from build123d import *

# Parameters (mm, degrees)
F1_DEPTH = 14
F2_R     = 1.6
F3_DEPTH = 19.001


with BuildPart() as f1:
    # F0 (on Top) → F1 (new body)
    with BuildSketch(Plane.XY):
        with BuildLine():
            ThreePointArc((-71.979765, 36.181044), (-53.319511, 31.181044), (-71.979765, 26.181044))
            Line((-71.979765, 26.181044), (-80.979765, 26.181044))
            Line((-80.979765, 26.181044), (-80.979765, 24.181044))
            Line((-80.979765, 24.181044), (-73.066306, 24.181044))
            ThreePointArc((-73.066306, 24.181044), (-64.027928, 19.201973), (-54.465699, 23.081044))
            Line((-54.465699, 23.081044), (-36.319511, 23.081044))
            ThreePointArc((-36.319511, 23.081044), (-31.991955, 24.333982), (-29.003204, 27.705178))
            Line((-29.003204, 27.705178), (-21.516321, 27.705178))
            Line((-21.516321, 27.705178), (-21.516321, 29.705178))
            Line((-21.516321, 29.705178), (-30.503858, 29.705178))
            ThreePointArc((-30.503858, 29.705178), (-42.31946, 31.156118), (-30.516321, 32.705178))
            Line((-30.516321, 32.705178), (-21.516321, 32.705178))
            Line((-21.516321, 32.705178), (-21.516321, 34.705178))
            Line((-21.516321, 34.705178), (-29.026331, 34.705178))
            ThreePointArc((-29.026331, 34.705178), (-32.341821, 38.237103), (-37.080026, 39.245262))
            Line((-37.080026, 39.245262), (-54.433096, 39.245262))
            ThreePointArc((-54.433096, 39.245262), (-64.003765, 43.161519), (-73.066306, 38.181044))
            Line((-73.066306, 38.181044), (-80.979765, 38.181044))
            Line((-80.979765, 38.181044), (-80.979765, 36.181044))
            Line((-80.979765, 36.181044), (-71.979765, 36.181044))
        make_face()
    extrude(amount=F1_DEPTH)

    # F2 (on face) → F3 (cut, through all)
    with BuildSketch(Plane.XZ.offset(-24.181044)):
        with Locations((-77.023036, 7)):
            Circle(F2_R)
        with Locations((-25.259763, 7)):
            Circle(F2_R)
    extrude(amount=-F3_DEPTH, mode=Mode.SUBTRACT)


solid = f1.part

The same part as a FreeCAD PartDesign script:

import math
import FreeCAD as App
import Part
import Sketcher
from FreeCAD import Vector
Q = App.Units.Quantity

doc = App.newDocument("Part")
body = doc.addObject("PartDesign::Body", "Body")

sketch1 = body.newObject("Sketcher::SketchObject", "Sketch")
sketch1.AttachmentSupport = (doc.getObject("XY_Plane"), [""])
sketch1.MapMode = "FlatFace"
sketch1.addGeometry([
    Part.ArcOfCircle(Part.Circle(Vector(-63.319511, 31.181044, 0), Vector(0, 0, 1), 10), math.radians(-150), math.radians(150)),
    Part.LineSegment(Vector(-71.979765, 26.181044, 0), Vector(-80.979765, 26.181044, 0)),
    Part.LineSegment(Vector(-80.979765, 26.181044, 0), Vector(-80.979765, 24.181044, 0)),
    Part.LineSegment(Vector(-80.979765, 24.181044, 0), Vector(-73.066306, 24.181044, 0)),
    Part.ArcOfCircle(Part.Circle(Vector(-63.319512, 31.181044, 0), Vector(0, 0, 1), 12), math.radians(-144.314664), math.radians(-42.454152)),
    Part.LineSegment(Vector(-54.465699, 23.081044, 0), Vector(-36.319511, 23.081044, 0)),
    Part.ArcOfCircle(Part.Circle(Vector(-36.319511, 31.181043, 0), Vector(0, 0, 1), 8.099999), math.radians(-90.000001), math.radians(-25.411674)),
    Part.LineSegment(Vector(-29.003204, 27.705178, 0), Vector(-21.516321, 27.705178, 0)),
    Part.LineSegment(Vector(-21.516321, 27.705178, 0), Vector(-21.516321, 29.705178, 0)),
    Part.LineSegment(Vector(-21.516321, 29.705178, 0), Vector(-30.503858, 29.705178, 0)),
    Part.ArcOfCircle(Part.Circle(Vector(-36.319511, 31.181044, 0), Vector(0, 0, 1), 6), math.radians(14.715663), math.radians(345.760385)),
    Part.LineSegment(Vector(-30.516321, 32.705178, 0), Vector(-21.516321, 32.705178, 0)),
    Part.LineSegment(Vector(-21.516321, 32.705178, 0), Vector(-21.516321, 34.705178, 0)),
    Part.LineSegment(Vector(-21.516321, 34.705178, 0), Vector(-29.026331, 34.705178, 0)),
    Part.ArcOfCircle(Part.Circle(Vector(-36.319512, 31.181041, 0), Vector(0, 0, 1), 8.100002), math.radians(25.790288), math.radians(95.387467)),
    Part.LineSegment(Vector(-37.080026, 39.245262, 0), Vector(-54.433096, 39.245262, 0)),
    Part.ArcOfCircle(Part.Circle(Vector(-63.319512, 31.181042, 0), Vector(0, 0, 1), 12.000001), math.radians(42.223026), math.radians(144.314659)),
    Part.LineSegment(Vector(-73.066306, 38.181044, 0), Vector(-80.979765, 38.181044, 0)),
    Part.LineSegment(Vector(-80.979765, 38.181044, 0), Vector(-80.979765, 36.181044, 0)),
    Part.LineSegment(Vector(-80.979765, 36.181044, 0), Vector(-71.979765, 36.181044, 0)),
], False)
sketch1.addConstraint([
    Sketcher.Constraint("Coincident", 0, 1, 1, 1),
    Sketcher.Constraint("Coincident", 1, 2, 2, 1),
    Sketcher.Constraint("Coincident", 2, 2, 3, 1),
    Sketcher.Constraint("Coincident", 3, 2, 4, 1),
    Sketcher.Constraint("Coincident", 4, 2, 5, 1),
    Sketcher.Constraint("Tangent", 5, 2, 6, 1),
    Sketcher.Constraint("Coincident", 6, 2, 7, 1),
    Sketcher.Constraint("Coincident", 7, 2, 8, 1),
    Sketcher.Constraint("Coincident", 8, 2, 9, 1),
    Sketcher.Constraint("Coincident", 9, 2, 10, 2),
    Sketcher.Constraint("Coincident", 10, 1, 11, 1),
    Sketcher.Constraint("Coincident", 11, 2, 12, 1),
    Sketcher.Constraint("Coincident", 12, 2, 13, 1),
    Sketcher.Constraint("Coincident", 13, 2, 14, 1),
    Sketcher.Constraint("Coincident", 14, 2, 15, 1),
    Sketcher.Constraint("Coincident", 15, 2, 16, 1),
    Sketcher.Constraint("Coincident", 16, 2, 17, 1),
    Sketcher.Constraint("Coincident", 17, 2, 18, 1),
    Sketcher.Constraint("Coincident", 18, 2, 19, 1),
    Sketcher.Constraint("Coincident", 19, 2, 0, 2),
    Sketcher.Constraint("Horizontal", 1),
    Sketcher.Constraint("Vertical", 2),
    Sketcher.Constraint("Horizontal", 3),
    Sketcher.Constraint("Horizontal", 5),
    Sketcher.Constraint("Horizontal", 7),
    Sketcher.Constraint("Vertical", 8),
    Sketcher.Constraint("Horizontal", 9),
    Sketcher.Constraint("Horizontal", 11),
    Sketcher.Constraint("Vertical", 12),
    Sketcher.Constraint("Horizontal", 13),
    Sketcher.Constraint("Horizontal", 15),
    Sketcher.Constraint("Horizontal", 17),
    Sketcher.Constraint("Vertical", 18),
    Sketcher.Constraint("Horizontal", 19),
    Sketcher.Constraint("Coincident", 4, 3, 0, 3),
    Sketcher.Constraint("Coincident", 10, 3, 6, 3),
    Sketcher.Constraint("Coincident", 14, 3, 6, 3),
    Sketcher.Constraint("Coincident", 16, 3, 0, 3),
    Sketcher.Constraint("Equal", 4, 16),
    Sketcher.Constraint("Horizontal", 4, 3, 6, 3),
    Sketcher.Constraint("Vertical", 8, 2, 11, 2),
    Sketcher.Constraint("Vertical", 3, 2, 16, 2),
    Sketcher.Constraint("Vertical", 2, 2, 17, 2),
    Sketcher.Constraint("Vertical", 0, 1, 19, 2),
    Sketcher.Constraint("Equal", 1, 11),
    Sketcher.Constraint("Equal", 2, 8),
    Sketcher.Constraint("Equal", 8, 12),
    Sketcher.Constraint("Radius", 0, Q("10 mm")),
    Sketcher.Constraint("Radius", 4, Q("12 mm")),
    Sketcher.Constraint("Radius", 10, Q("6 mm")),
    Sketcher.Constraint("Radius", 6, Q("8.099999 mm")),
    Sketcher.Constraint("DistanceX", 1, 2, 1, 1, Q("9 mm")),
    Sketcher.Constraint("DistanceY", 2, 2, 2, 1, Q("2 mm")),
    Sketcher.Constraint("DistanceX", 0, 3, 6, 3, Q("27 mm")),
    Sketcher.Constraint("DistanceY", 0, 1, 16, 3, Q("4.999998 mm")),
    Sketcher.Constraint("DistanceY", 9, 2, 10, 1, Q("3 mm")),
    Sketcher.Constraint("Radius", 14, Q("8.100002 mm")),
    Sketcher.Constraint("DistanceX", 13, 2, 13, 1, Q("7.51001 mm")),
    Sketcher.Constraint("DistanceX", 15, 2, 15, 1, Q("17.35307 mm")),
    Sketcher.Constraint("DistanceX", 4, 2, -1, 1, Q("54.465699 mm")),
    Sketcher.Constraint("DistanceY", -1, 1, 14, 3, Q("31.181041 mm")),
])
pad1 = body.newObject("PartDesign::Pad", "Pad")
pad1.Profile = sketch1
pad1.Length = 14

sketch2 = body.newObject("Sketcher::SketchObject", "Sketch001")
sketch2.AttachmentSupport = (doc.getObject("XZ_Plane"), [""])
sketch2.MapMode = "FlatFace"
sketch2.AttachmentOffset = App.Placement(Vector(0, 0, -24.181044), App.Rotation())
sketch2.addGeometry([
    Part.Circle(Vector(-77.023036, 7, 0), Vector(0, 0, 1), 1.6),
    Part.Circle(Vector(-25.259763, 7, 0), Vector(0, 0, 1), 1.6),
], False)
sketch2.addConstraint([
    Sketcher.Constraint("Equal", 0, 1),
    Sketcher.Constraint("Horizontal", 0, 3, 1, 3),
    Sketcher.Constraint("Diameter", 0, Q("3.2 mm")),
    Sketcher.Constraint("DistanceY", -1, 1, 0, 3, Q("7 mm")),
    Sketcher.Constraint("DistanceX", 0, 3, -1, 1, Q("77.023036 mm")),
    Sketcher.Constraint("DistanceX", 1, 3, -1, 1, Q("25.259763 mm")),
])
pocket1 = body.newObject("PartDesign::Pocket", "Pocket")
pocket1.Profile = sketch2
pocket1.Type = "ThroughAll"

doc.recompute()
